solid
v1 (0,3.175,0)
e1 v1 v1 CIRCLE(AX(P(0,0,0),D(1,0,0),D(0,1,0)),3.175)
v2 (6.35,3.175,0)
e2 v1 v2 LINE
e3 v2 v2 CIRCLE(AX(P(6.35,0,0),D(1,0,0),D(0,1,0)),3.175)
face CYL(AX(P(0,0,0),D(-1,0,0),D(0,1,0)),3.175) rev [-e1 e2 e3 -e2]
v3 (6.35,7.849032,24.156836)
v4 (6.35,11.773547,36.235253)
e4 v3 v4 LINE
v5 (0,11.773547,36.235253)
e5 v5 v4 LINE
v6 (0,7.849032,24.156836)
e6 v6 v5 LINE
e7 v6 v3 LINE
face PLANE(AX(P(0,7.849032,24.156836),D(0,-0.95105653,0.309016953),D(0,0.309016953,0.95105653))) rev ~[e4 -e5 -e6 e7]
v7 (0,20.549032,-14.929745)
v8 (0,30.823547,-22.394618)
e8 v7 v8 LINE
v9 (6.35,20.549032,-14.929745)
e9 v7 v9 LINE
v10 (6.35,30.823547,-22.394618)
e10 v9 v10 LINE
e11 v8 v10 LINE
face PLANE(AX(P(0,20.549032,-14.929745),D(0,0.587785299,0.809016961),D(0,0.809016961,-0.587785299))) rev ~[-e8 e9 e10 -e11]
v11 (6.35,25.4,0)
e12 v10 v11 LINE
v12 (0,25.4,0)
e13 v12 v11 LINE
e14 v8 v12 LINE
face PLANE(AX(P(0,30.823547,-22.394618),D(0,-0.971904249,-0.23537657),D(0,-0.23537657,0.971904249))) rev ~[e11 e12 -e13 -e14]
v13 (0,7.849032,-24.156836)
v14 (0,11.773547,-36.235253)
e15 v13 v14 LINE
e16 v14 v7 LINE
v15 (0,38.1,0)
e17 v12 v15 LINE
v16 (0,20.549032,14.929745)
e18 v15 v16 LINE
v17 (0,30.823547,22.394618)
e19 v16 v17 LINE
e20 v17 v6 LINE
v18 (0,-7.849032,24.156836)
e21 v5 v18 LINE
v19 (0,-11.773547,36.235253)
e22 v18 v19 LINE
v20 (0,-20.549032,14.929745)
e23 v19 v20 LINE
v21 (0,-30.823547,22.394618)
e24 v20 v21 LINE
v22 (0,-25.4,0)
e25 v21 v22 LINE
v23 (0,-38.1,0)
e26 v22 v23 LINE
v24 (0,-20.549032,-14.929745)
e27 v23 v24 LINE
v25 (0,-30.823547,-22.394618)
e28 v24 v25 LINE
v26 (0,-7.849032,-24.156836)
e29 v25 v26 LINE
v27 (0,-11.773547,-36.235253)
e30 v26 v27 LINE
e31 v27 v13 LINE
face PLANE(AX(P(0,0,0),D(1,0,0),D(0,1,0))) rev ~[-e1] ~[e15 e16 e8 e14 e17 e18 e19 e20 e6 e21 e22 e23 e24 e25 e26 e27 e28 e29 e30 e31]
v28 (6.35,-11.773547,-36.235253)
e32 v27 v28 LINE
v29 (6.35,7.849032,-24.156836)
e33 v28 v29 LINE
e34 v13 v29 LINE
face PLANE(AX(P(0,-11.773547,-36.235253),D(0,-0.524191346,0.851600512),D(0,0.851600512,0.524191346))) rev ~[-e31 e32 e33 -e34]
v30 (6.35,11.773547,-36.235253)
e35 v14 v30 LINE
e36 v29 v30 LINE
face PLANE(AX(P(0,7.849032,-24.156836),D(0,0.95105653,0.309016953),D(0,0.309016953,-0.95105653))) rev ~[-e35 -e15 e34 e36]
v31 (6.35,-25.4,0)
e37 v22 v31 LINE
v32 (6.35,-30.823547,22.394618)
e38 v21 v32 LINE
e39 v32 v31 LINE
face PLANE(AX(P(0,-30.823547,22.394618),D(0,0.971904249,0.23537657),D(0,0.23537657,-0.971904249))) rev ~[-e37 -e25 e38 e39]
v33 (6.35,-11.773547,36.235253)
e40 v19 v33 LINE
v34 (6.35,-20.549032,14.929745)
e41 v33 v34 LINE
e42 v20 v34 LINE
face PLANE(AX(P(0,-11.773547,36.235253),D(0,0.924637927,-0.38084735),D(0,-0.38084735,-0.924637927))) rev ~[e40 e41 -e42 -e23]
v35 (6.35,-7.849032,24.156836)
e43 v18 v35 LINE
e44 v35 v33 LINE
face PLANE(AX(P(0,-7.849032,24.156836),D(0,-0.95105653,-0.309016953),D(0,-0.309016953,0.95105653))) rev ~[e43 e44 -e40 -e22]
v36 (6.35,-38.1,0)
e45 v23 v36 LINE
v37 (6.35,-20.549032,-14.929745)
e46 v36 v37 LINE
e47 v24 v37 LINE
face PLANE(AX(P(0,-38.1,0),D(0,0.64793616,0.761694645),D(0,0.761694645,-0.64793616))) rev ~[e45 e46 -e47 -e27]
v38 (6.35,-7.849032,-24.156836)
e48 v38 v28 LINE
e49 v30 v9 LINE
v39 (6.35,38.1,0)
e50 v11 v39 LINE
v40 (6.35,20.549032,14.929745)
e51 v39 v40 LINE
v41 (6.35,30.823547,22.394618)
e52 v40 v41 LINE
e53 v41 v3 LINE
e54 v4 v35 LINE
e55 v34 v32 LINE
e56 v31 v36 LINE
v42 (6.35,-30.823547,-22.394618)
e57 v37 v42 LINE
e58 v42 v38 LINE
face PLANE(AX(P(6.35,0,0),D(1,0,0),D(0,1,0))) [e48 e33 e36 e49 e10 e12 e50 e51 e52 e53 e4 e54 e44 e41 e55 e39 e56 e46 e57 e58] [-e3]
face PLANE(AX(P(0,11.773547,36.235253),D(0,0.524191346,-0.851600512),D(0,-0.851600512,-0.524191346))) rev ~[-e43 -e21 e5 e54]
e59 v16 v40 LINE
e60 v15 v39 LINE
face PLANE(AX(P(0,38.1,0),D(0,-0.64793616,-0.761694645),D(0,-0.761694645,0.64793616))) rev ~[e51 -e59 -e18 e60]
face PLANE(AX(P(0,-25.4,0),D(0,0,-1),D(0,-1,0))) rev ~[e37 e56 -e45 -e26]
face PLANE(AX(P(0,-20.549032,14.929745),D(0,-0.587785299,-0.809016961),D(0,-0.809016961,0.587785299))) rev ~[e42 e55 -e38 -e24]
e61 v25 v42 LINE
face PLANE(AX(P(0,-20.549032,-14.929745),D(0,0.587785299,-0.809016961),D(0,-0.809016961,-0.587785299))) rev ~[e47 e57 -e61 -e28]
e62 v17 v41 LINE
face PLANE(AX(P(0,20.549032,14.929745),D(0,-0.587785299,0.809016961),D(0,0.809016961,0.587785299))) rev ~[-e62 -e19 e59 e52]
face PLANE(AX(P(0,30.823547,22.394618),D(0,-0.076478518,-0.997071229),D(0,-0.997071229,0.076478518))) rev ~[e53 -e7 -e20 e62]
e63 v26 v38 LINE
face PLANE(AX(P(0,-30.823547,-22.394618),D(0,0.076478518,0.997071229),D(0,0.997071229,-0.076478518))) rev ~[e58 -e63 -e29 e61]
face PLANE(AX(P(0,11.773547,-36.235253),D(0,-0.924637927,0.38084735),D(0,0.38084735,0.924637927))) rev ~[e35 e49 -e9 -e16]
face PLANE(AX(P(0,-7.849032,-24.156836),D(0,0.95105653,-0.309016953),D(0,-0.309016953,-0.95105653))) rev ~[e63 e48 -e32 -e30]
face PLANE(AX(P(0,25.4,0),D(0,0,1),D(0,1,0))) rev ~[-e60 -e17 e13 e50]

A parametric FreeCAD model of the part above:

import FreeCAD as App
import Part
import Sketcher
from FreeCAD import Vector
Q = App.Units.Quantity

doc = App.newDocument("Part")
body = doc.addObject("PartDesign::Body", "Body")

sketch1 = doc.addObject("Sketcher::SketchObject", "Sketch")
body.addObject(sketch1)
sketch1.AttachmentSupport = (doc.YZ_Plane, [""])
sketch1.MapMode = "FlatFace"
sketch1.addGeometry([
    Part.LineSegment(Vector(25.4, 0, 0), Vector(38.1, 0, 0)),
    Part.LineSegment(Vector(38.1, 0, 0), Vector(20.5, 14.9, 0)),
    Part.LineSegment(Vector(20.5, 14.9, 0), Vector(30.8, 22.4, 0)),
    Part.LineSegment(Vector(30.8, 22.4, 0), Vector(7.8, 24.2, 0)),
    Part.LineSegment(Vector(7.8, 24.2, 0), Vector(11.8, 36.2, 0)),
    Part.LineSegment(Vector(11.8, 36.2, 0), Vector(-7.8, 24.2, 0)),
    Part.LineSegment(Vector(-7.8, 24.2, 0), Vector(-11.8, 36.2, 0)),
    Part.LineSegment(Vector(-11.8, 36.2, 0), Vector(-20.5, 14.9, 0)),
    Part.LineSegment(Vector(-20.5, 14.9, 0), Vector(-30.8, 22.4, 0)),
    Part.LineSegment(Vector(-30.8, 22.4, 0), Vector(-25.4, 0, 0)),
    Part.LineSegment(Vector(-25.4, 0, 0), Vector(-38.1, 0, 0)),
    Part.LineSegment(Vector(-38.1, 0, 0), Vector(-20.5, -14.9, 0)),
    Part.LineSegment(Vector(-20.5, -14.9, 0), Vector(-30.8, -22.4, 0)),
    Part.LineSegment(Vector(-30.8, -22.4, 0), Vector(-7.8, -24.2, 0)),
    Part.LineSegment(Vector(-7.8, -24.2, 0), Vector(-11.8, -36.2, 0)),
    Part.LineSegment(Vector(-11.8, -36.2, 0), Vector(7.8, -24.2, 0)),
    Part.LineSegment(Vector(7.8, -24.2, 0), Vector(11.8, -36.2, 0)),
    Part.LineSegment(Vector(11.8, -36.2, 0), Vector(20.5, -14.9, 0)),
    Part.LineSegment(Vector(20.5, -14.9, 0), Vector(30.8, -22.4, 0)),
    Part.LineSegment(Vector(30.8, -22.4, 0), Vector(25.4, 0, 0)),
    Part.Circle(Vector(0, 0, 0), Vector(0, 0, 1), 3.2),
], False)
sketch1.addConstraint([
    Sketcher.Constraint("Coincident", 0, 2, 1, 1),
    Sketcher.Constraint("Coincident", 1, 2, 2, 1),
    Sketcher.Constraint("Coincident", 2, 2, 3, 1),
    Sketcher.Constraint("Coincident", 3, 2, 4, 1),
    Sketcher.Constraint("Coincident", 4, 2, 5, 1),
    Sketcher.Constraint("Coincident", 5, 2, 6, 1),
    Sketcher.Constraint("Coincident", 6, 2, 7, 1),
    Sketcher.Constraint("Coincident", 7, 2, 8, 1),
    Sketcher.Constraint("Coincident", 8, 2, 9, 1),
    Sketcher.Constraint("Coincident", 9, 2, 10, 1),
    Sketcher.Constraint("Coincident", 10, 2, 11, 1),
    Sketcher.Constraint("Coincident", 11, 2, 12, 1),
    Sketcher.Constraint("Coincident", 12, 2, 13, 1),
    Sketcher.Constraint("Coincident", 13, 2, 14, 1),
    Sketcher.Constraint("Coincident", 14, 2, 15, 1),
    Sketcher.Constraint("Coincident", 15, 2, 16, 1),
    Sketcher.Constraint("Coincident", 16, 2, 17, 1),
    Sketcher.Constraint("Coincident", 17, 2, 18, 1),
    Sketcher.Constraint("Coincident", 18, 2, 19, 1),
    Sketcher.Constraint("Coincident", 19, 2, 0, 1),
    Sketcher.Constraint("Horizontal", 0),
    Sketcher.Constraint("Horizontal", 10),
    Sketcher.Constraint("Coincident", 20, 3, -1, 1),
    Sketcher.Constraint("Symmetric", 0, 2, 10, 2, -1, 1),
    Sketcher.Constraint("Symmetric", 1, 2, 11, 2, -1, 1),
    Sketcher.Constraint("Symmetric", 2, 2, 12, 2, -1, 1),
    Sketcher.Constraint("Symmetric", 3, 2, 13, 2, -1, 1),
    Sketcher.Constraint("Symmetric", 4, 2, 14, 2, -1, 1),
    Sketcher.Constraint("Symmetric", 5, 2, 15, 2, -1, 1),
    Sketcher.Constraint("Symmetric", 6, 2, 16, 2, -1, 1),
    Sketcher.Constraint("Symmetric", 7, 2, 17, 2, -1, 1),
    Sketcher.Constraint("Symmetric", 8, 2, 18, 2, -1, 1),
    Sketcher.Constraint("Symmetric", 3, 2, 5, 2, -2),
    Sketcher.Constraint("Symmetric", 4, 2, 6, 2, -2),
    Sketcher.Constraint("Symmetric", 1, 2, 7, 2, -2),
    Sketcher.Constraint("Symmetric", 2, 2, 8, 2, -2),
    Sketcher.Constraint("Symmetric", 9, 2, 19, 2, -2),
    Sketcher.Constraint("Equal", 1, 3),
    Sketcher.Constraint("Equal", 2, 4),
    Sketcher.Constraint("Equal", 3, 5),
    Sketcher.Constraint("Equal", 5, 7),
    Sketcher.Constraint("Equal", 7, 9),
    Sketcher.Constraint("Diameter", 20, Q("0.25 in")),
    Sketcher.Constraint("DistanceX", 0, 1, 0, 2, Q("0.5 in")),
    Sketcher.Constraint("DistanceX", 9, 2, -1, 1, Q("1 in")),
    Sketcher.Constraint("Angle", 2, Q("36.000003 deg")),
    Sketcher.Constraint("Angle", 4, Q("72.000002 deg")),
    Sketcher.Constraint("Distance", 2, Q("0.5 in")),
])
pad1 = doc.addObject("PartDesign::Pad", "Pad")
body.addObject(pad1)
pad1.Profile = sketch1
pad1.Length = Q("0.25 in")

doc.recompute()
